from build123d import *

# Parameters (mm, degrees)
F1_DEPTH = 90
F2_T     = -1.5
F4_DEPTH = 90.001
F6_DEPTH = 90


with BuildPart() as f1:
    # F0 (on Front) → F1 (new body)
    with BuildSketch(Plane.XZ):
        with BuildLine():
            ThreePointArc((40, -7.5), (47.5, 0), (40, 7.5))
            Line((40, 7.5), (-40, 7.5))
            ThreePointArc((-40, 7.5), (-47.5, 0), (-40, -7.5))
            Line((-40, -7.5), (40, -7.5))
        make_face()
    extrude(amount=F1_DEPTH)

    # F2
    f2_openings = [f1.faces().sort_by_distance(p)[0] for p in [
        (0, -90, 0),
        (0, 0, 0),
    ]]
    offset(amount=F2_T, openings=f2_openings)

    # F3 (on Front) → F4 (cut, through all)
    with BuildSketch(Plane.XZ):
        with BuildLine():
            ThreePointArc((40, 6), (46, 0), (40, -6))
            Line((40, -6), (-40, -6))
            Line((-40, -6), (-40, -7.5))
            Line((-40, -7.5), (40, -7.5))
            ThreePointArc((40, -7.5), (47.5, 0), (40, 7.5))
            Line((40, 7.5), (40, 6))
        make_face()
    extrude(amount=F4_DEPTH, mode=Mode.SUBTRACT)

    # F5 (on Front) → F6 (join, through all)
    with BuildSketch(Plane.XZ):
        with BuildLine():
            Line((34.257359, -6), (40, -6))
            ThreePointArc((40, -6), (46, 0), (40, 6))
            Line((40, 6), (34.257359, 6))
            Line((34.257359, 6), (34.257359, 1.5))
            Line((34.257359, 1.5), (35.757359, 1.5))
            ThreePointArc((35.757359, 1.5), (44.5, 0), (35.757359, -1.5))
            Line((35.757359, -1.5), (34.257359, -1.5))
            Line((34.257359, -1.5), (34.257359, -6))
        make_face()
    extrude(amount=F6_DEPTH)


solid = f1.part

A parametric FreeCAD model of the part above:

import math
import FreeCAD as App
import Part
import Sketcher
from FreeCAD import Vector
Q = App.Units.Quantity


def faces_at(feature, points):
    """Names of the faces that lie closest to the given points."""
    faces = feature.Shape.Faces
    near = lambda p: min(range(len(faces)), key=lambda i: faces[i].distToShape(Part.Vertex(*p))[0])
    return sorted({f"Face{near(p) + 1}" for p in points})

doc = App.newDocument("Part")
body = doc.addObject("PartDesign::Body", "Body")

sketch1 = body.newObject("Sketcher::SketchObject", "Sketch")
sketch1.AttachmentSupport = (doc.getObject("XZ_Plane"), [""])
sketch1.MapMode = "FlatFace"
sketch1.addGeometry([
    Part.ArcOfCircle(Part.Circle(Vector(40, 0, 0), Vector(0, 0, 1), 8), math.radians(-90), math.radians(90)),
    Part.LineSegment(Vector(40, 8, 0), Vector(-40, 8, 0)),
    Part.ArcOfCircle(Part.Circle(Vector(-40, 0, 0), Vector(0, 0, 1), 8), math.radians(90), math.radians(270)),
    Part.LineSegment(Vector(-40, -8, 0), Vector(40, -8, 0)),
], False)
sketch1.addConstraint([
    Sketcher.Constraint("Tangent", 0, 2, 1, 1),
    Sketcher.Constraint("Tangent", 1, 2, 2, 1),
    Sketcher.Constraint("Tangent", 2, 2, 3, 1),
    Sketcher.Constraint("Tangent", 3, 2, 0, 1),
    Sketcher.Constraint("Horizontal", 1),
    Sketcher.Constraint("Horizontal", 3),
    Sketcher.Constraint("Symmetric", 0, 3, 2, 3, -1, 1),
    Sketcher.Constraint("Radius", 0, Q("7.5 mm")),
    Sketcher.Constraint("DistanceX", 1, 2, 1, 1, Q("80 mm")),
])
pad1 = body.newObject("PartDesign::Pad", "Pad")
pad1.Profile = sketch1
pad1.Length = 90
doc.recompute()

thickness = body.newObject("PartDesign::Thickness", "Thickness")
thickness.Base = (pad1, faces_at(pad1, [(0, -90, 0), (0, 0, 0)]))
thickness.Value = 1.5
thickness.Reversed = True
thickness.Join = "Arc"

sketch2 = body.newObject("Sketcher::SketchObject", "Sketch001")
sketch2.AttachmentSupport = (doc.getObject("XZ_Plane"), [""])
sketch2.MapMode = "FlatFace"
sketch2.addGeometry([
    Part.ArcOfCircle(Part.Circle(Vector(40, 0, 0), Vector(0, 0, 1), 6), math.radians(-90), math.radians(90)),
    Part.LineSegment(Vector(40, -6, 0), Vector(-40, -6, 0)),
    Part.LineSegment(Vector(-40, -6, 0), Vector(-40, -7.5, 0)),
    Part.LineSegment(Vector(-40, -7.5, 0), Vector(40, -7.5, 0)),
    Part.ArcOfCircle(Part.Circle(Vector(40, 0, 0), Vector(0, 0, 1), 7.5), math.radians(-90), math.radians(90)),
    Part.LineSegment(Vector(40, 7.5, 0), Vector(40, 6, 0)),
], False)
sketch2.addConstraint([
    Sketcher.Constraint("Tangent", 0, 1, 1, 1),
    Sketcher.Constraint("Coincident", 1, 2, 2, 1),
    Sketcher.Constraint("Coincident", 2, 2, 3, 1),
    Sketcher.Constraint("Tangent", 3, 2, 4, 1),
    Sketcher.Constraint("Coincident", 4, 2, 5, 1),
    Sketcher.Constraint("Coincident", 5, 2, 0, 2),
    Sketcher.Constraint("Horizontal", 1),
    Sketcher.Constraint("Vertical", 2),
    Sketcher.Constraint("Horizontal", 3),
    Sketcher.Constraint("Vertical", 5),
    Sketcher.Constraint("Coincident", 4, 3, 0, 3),
    Sketcher.Constraint("Symmetric", 2, 2, 4, 2, -1, 1),
    Sketcher.Constraint("Vertical", 3, 2, 4, 2),
    Sketcher.Constraint("Radius", 0, Q("6 mm")),
    Sketcher.Constraint("Radius", 4, Q("7.5 mm")),
    Sketcher.Constraint("DistanceX", 1, 2, 1, 1, Q("80 mm")),
])
pocket1 = body.newObject("PartDesign::Pocket", "Pocket")
pocket1.Profile = sketch2
pocket1.Type = "ThroughAll"
pocket1.Reversed = True

sketch3 = body.newObject("Sketcher::SketchObject", "Sketch002")
sketch3.AttachmentSupport = (doc.getObject("XZ_Plane"), [""])
sketch3.MapMode = "FlatFace"
sketch3.addGeometry([
    Part.LineSegment(Vector(34.3, -6, 0), Vector(40, -6, 0)),
    Part.ArcOfCircle(Part.Circle(Vector(40, 0, 0), Vector(0, 0, 1), 6), math.radians(-90), math.radians(90)),
    Part.LineSegment(Vector(40, 6, 0), Vector(34.3, 6, 0)),
    Part.LineSegment(Vector(34.3, 6, 0), Vector(34.3, 1.5, 0)),
    Part.LineSegment(Vector(34.3, 1.5, 0), Vector(35.8, 1.5, 0)),
    Part.ArcOfCircle(Part.Circle(Vector(40, 0, 0), Vector(0, 0, 1), 4.5), math.radians(-161), math.radians(161)),
    Part.LineSegment(Vector(35.8, -1.5, 0), Vector(34.3, -1.5, 0)),
    Part.LineSegment(Vector(34.3, -1.5, 0), Vector(34.3, -6, 0)),
], False)
sketch3.addConstraint([
    Sketcher.Constraint("Tangent", 0, 2, 1, 1),
    Sketcher.Constraint("Tangent", 1, 2, 2, 1),
    Sketcher.Constraint("Coincident", 2, 2, 3, 1),
    Sketcher.Constraint("Coincident", 3, 2, 4, 1),
    Sketcher.Constraint("Coincident", 4, 2, 5, 2),
    Sketcher.Constraint("Coincident", 5, 1, 6, 1),
    Sketcher.Constraint("Coincident", 6, 2, 7, 1),
    Sketcher.Constraint("Coincident", 7, 2, 0, 1),
    Sketcher.Constraint("Horizontal", 0),
    Sketcher.Constraint("Horizontal", 2),
    Sketcher.Constraint("Vertical", 3),
    Sketcher.Constraint("Horizontal", 4),
    Sketcher.Constraint("Horizontal", 6),
    Sketcher.Constraint("Vertical", 7),
    Sketcher.Constraint("Coincident", 5, 3, 1, 3),
    Sketcher.Constraint("Symmetric", 4, 2, 5, 1, -1),
    Sketcher.Constraint("Vertical", 3, 2, 6, 2),
    Sketcher.Constraint("Radius", 1, Q("6 mm")),
    Sketcher.Constraint("Radius", 5, Q("4.5 mm")),
    Sketcher.Constraint("DistanceX", 4, 1, 4, 2, Q("1.5 mm")),
    Sketcher.Constraint("DistanceY", 3, 2, 3, 1, Q("4.5 mm")),
    Sketcher.Constraint("DistanceX", -1, 1, 1, 3, Q("40 mm")),
])
pad2 = body.newObject("PartDesign::Pad", "Pad001")
pad2.Profile = sketch3
pad2.Length = 90

doc.recompute()
